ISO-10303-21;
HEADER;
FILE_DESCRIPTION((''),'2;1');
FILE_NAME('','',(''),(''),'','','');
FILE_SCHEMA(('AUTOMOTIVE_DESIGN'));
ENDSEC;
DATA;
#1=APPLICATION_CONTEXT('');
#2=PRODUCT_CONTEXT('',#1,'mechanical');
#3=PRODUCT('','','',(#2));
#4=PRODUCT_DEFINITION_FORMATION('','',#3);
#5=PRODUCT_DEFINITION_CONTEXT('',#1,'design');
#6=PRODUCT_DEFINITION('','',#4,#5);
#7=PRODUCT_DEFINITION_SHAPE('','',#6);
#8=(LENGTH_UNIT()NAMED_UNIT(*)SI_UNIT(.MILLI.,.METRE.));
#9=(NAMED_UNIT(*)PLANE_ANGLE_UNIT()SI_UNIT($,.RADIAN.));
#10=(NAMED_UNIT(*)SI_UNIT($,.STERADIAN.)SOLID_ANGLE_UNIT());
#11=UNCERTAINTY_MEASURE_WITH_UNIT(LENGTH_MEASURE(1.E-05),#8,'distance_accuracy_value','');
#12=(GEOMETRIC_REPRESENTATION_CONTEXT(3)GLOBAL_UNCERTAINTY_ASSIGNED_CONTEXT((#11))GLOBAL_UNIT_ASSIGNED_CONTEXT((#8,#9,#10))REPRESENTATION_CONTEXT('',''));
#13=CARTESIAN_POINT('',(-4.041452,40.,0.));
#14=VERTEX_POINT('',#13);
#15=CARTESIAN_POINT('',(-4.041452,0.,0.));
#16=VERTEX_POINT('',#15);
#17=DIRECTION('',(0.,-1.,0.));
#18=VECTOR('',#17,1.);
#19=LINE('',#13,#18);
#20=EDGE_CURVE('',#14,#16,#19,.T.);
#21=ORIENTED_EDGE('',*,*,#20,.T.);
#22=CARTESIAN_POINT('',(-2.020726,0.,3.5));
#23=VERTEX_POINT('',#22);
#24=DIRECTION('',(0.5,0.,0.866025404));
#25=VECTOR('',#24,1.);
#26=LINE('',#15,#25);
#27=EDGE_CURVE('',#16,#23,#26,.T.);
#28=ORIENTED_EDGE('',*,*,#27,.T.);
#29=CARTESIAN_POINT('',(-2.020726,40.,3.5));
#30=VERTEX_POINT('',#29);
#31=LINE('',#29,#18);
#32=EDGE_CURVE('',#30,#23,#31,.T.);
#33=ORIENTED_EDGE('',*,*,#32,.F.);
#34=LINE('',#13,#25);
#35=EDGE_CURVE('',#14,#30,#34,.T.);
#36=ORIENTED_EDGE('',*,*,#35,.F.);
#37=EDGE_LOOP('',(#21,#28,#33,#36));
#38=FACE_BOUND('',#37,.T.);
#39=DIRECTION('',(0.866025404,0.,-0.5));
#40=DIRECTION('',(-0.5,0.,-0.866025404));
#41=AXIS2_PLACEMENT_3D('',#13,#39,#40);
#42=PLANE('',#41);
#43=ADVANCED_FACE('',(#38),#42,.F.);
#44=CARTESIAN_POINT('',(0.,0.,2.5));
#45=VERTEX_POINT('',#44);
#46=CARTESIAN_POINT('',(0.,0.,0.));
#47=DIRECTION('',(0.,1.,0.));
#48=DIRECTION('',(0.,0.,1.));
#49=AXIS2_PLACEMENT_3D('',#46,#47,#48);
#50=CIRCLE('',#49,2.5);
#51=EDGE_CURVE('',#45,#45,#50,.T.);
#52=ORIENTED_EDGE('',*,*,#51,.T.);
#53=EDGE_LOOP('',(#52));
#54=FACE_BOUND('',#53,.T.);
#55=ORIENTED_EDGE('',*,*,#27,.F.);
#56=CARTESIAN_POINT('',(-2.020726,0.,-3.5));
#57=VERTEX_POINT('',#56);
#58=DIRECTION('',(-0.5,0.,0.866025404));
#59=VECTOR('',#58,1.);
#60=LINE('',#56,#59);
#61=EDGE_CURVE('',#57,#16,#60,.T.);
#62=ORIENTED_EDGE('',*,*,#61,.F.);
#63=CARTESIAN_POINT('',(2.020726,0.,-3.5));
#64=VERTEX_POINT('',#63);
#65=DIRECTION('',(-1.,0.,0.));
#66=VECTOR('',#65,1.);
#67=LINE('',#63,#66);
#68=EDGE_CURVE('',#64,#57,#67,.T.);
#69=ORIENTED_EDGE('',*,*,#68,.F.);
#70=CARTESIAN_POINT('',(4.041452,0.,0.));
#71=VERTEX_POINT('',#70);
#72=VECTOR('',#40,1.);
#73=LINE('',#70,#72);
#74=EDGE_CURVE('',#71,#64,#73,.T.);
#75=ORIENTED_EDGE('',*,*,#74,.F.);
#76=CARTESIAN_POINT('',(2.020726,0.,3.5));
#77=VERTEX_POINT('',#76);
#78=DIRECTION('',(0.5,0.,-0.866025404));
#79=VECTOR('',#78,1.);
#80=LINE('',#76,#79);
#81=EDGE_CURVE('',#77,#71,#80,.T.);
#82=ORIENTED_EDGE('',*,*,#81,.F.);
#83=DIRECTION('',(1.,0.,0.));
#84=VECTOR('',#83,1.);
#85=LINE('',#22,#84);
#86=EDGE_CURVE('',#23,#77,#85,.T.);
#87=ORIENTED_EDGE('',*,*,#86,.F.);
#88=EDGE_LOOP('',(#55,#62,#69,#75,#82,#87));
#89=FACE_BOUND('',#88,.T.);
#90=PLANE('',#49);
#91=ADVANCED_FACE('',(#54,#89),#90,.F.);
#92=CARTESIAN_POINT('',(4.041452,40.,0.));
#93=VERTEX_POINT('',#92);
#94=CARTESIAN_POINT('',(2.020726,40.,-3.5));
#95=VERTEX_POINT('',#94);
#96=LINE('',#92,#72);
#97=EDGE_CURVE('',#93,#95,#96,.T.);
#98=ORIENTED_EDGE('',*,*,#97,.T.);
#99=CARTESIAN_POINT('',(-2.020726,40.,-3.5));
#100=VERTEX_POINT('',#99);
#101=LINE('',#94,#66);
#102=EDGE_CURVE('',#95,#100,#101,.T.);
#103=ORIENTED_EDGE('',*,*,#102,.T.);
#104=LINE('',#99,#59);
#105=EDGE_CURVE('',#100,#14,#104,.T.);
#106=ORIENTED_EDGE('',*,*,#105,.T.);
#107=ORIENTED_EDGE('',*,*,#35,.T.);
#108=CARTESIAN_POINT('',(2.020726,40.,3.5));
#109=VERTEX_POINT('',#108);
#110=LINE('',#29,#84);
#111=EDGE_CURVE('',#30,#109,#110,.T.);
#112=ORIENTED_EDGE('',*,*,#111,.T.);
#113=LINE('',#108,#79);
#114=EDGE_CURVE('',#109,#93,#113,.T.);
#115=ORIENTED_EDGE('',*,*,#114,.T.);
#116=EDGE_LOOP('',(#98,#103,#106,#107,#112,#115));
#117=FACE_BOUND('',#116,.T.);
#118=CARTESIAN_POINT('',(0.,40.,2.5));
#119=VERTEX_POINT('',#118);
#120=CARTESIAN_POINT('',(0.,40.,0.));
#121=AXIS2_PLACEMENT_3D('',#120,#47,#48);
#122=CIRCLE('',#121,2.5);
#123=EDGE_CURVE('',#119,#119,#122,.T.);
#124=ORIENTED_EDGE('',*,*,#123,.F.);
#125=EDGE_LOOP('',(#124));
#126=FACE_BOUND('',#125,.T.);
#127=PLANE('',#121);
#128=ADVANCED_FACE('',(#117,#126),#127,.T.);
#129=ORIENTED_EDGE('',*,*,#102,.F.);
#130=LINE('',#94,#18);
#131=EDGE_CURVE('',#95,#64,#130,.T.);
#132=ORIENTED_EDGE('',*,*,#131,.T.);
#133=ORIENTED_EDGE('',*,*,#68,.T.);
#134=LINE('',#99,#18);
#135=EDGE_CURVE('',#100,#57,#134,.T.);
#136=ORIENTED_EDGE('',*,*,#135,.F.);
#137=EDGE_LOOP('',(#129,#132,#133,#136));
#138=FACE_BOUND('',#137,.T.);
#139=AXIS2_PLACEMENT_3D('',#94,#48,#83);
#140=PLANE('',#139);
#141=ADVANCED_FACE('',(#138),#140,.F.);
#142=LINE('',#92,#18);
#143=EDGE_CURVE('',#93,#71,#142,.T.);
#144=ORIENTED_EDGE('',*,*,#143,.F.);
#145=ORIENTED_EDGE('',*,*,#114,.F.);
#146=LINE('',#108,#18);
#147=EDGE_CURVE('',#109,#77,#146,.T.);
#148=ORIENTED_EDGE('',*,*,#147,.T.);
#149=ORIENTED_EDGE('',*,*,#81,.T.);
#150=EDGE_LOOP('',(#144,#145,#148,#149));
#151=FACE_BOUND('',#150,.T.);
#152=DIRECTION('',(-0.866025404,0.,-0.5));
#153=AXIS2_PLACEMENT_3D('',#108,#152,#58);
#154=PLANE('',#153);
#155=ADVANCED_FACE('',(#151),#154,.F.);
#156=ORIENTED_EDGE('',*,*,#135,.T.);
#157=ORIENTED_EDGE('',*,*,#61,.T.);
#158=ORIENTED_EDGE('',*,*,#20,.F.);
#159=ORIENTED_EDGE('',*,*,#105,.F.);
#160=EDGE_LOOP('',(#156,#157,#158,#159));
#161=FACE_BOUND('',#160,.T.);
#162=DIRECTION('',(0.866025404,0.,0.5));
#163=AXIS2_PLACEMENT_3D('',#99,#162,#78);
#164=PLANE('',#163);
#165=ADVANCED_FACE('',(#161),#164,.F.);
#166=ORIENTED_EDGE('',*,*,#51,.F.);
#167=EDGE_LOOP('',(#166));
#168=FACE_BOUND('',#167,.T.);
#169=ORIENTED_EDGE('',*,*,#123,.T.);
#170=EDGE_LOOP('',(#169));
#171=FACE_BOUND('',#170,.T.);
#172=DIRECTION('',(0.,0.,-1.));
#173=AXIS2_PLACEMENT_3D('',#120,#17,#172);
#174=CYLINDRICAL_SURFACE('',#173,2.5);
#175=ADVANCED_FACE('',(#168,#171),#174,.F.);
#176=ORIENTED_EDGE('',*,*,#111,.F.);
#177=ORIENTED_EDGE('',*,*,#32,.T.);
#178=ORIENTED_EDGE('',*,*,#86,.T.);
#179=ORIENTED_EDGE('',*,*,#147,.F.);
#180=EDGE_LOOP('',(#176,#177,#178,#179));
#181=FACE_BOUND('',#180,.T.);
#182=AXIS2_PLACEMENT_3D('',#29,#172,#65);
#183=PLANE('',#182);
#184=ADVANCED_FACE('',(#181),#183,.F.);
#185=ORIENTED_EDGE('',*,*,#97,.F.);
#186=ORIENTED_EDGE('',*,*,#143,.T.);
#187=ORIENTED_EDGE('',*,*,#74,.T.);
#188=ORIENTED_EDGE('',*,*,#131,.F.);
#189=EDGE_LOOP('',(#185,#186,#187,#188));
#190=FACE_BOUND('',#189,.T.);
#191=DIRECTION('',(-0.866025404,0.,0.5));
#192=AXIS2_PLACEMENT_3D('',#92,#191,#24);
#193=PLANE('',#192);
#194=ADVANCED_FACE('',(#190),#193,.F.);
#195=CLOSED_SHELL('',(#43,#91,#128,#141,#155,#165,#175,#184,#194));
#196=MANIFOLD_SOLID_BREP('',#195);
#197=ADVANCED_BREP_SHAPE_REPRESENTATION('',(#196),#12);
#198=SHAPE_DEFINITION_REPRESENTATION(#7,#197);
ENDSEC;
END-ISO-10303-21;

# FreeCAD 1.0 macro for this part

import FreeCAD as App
import Part
import Sketcher
Q = App.Units.Quantity

doc = App.newDocument("Part")
body = doc.addObject("PartDesign::Body", "Body")

sketch1 = body.newObject("Sketcher::SketchObject", "Sketch")
sketch1.AttachmentSupport = (doc.getObject("XZ_Plane"), [""])
sketch1.MapMode = "FlatFace"
sketch1.addGeometry([
    Part.LineSegment(App.Vector(2, -3.5, 0), App.Vector(-2, -3.5, 0)),
    Part.LineSegment(App.Vector(-2, -3.5, 0), App.Vector(-4, 0, 0)),
    Part.LineSegment(App.Vector(-4, 0, 0), App.Vector(-2, 3.5, 0)),
    Part.LineSegment(App.Vector(-2, 3.5, 0), App.Vector(2, 3.5, 0)),
    Part.LineSegment(App.Vector(2, 3.5, 0), App.Vector(4, 0, 0)),
    Part.LineSegment(App.Vector(4, 0, 0), App.Vector(2, -3.5, 0)),
    Part.Circle(App.Vector(0, 0, 0), App.Vector(0, 0, 1), 2.5),
], False)
sketch1.addConstraint([
    Sketcher.Constraint("Coincident", 0, 2, 1, 1),
    Sketcher.Constraint("Coincident", 1, 2, 2, 1),
    Sketcher.Constraint("Coincident", 2, 2, 3, 1),
    Sketcher.Constraint("Coincident", 3, 2, 4, 1),
    Sketcher.Constraint("Coincident", 4, 2, 5, 1),
    Sketcher.Constraint("Coincident", 5, 2, 0, 1),
    Sketcher.Constraint("Horizontal", 0),
    Sketcher.Constraint("Horizontal", 3),
    Sketcher.Constraint("Coincident", 6, 3, -1, 1),
    Sketcher.Constraint("Symmetric", 0, 2, 3, 2, -1, 1),
    Sketcher.Constraint("Symmetric", 1, 2, 4, 2, -1, 1),
    Sketcher.Constraint("PointOnObject", 1, 2, -1),
    Sketcher.Constraint("Parallel", 2, 5),
    Sketcher.Constraint("Vertical", 0, 2, 2, 2),
    Sketcher.Constraint("Diameter", 6, 5.0),
    Sketcher.Constraint("Angle", 1, Q("120 deg")),
    Sketcher.Constraint("DistanceY", 0, 2, 2, 2, 7.0),
    Sketcher.Constraint("DistanceX", 0, 2, 0, 1, 4.041452),
])
pad1 = body.newObject("PartDesign::Pad", "Pad")
pad1.Profile = sketch1
pad1.Length = 40
pad1.Reversed = True

doc.recompute()
